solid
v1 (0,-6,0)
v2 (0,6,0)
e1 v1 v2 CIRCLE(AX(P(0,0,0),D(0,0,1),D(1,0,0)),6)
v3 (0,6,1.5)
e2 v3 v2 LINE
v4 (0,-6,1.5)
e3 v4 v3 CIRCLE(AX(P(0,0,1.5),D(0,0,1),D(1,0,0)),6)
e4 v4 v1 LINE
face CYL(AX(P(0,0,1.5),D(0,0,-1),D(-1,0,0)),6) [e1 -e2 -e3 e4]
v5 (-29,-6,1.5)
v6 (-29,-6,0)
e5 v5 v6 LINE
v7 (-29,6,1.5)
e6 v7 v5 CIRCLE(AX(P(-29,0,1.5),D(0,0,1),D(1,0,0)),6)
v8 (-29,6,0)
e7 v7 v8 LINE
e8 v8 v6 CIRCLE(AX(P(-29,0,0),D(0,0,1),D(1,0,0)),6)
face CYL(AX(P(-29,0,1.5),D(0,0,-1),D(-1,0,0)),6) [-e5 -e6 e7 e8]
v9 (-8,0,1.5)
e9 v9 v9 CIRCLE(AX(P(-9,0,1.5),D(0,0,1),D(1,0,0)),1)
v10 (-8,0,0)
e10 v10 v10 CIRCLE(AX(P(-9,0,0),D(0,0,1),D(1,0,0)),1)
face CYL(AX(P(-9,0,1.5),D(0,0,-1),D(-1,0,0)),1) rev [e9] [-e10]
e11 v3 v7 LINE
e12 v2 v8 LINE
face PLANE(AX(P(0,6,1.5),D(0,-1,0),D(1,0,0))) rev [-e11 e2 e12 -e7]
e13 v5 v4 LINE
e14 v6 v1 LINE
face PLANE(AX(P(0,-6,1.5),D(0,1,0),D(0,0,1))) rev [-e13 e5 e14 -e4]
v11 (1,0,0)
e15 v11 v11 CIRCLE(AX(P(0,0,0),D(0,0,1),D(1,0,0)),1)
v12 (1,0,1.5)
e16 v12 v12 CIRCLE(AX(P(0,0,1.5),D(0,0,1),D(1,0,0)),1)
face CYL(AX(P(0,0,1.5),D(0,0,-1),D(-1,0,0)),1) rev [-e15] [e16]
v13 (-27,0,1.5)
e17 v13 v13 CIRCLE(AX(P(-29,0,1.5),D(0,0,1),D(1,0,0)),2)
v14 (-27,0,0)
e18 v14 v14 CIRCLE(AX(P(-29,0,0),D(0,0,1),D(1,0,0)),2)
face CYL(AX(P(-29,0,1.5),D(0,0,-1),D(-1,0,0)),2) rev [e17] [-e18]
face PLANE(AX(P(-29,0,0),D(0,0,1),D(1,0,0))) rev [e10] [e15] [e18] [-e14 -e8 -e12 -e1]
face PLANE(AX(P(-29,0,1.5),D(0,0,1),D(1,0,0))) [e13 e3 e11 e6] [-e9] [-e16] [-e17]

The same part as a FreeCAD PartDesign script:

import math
import FreeCAD as App
import Part
import Sketcher
Q = App.Units.Quantity

doc = App.newDocument("Part")
params = doc.addObject("Spreadsheet::Sheet", "Params")
for row, (alias, value) in enumerate([
    ("sketch1_diameter", "4 mm"),
    ("sketch1_diameter2", "2 mm"),
    ("sketch1_radius", "6 mm"),
    ("sketch1_width", "29 mm"),
    ("pad1_length", "1.5 mm"),
], start=1):
    params.set(f"A{row}", alias)
    params.set(f"B{row}", "=" + value)
    params.setAlias(f"B{row}", alias)

body = doc.addObject("PartDesign::Body", "Body")

# Sketch on XY plane
sketch1 = body.newObject("Sketcher::SketchObject", "Sketch")
sketch1.AttachmentSupport = (doc.getObject("XY_Plane"), [""])
sketch1.MapMode = "FlatFace"
sketch1.addGeometry(Part.LineSegment(App.Vector(0, 6, 0), App.Vector(-29, 6, 0)), False)
sketch1.addGeometry(Part.ArcOfCircle(Part.Circle(App.Vector(-29, 0, 0), App.Vector(0, 0, 1), 6), math.radians(90), math.radians(270)), False)
sketch1.addGeometry(Part.LineSegment(App.Vector(-29, -6, 0), App.Vector(0, -6, 0)), False)
sketch1.addGeometry(Part.ArcOfCircle(Part.Circle(App.Vector(0, 0, 0), App.Vector(0, 0, 1), 6), math.radians(-90), math.radians(90)), False)
sketch1.addGeometry(Part.Circle(App.Vector(-29, 0, 0), App.Vector(0, 0, 1), 2), False)
sketch1.addGeometry(Part.Circle(App.Vector(-9, 0, 0), App.Vector(0, 0, 1), 1), False)
sketch1.addGeometry(Part.Circle(App.Vector(0, 0, 0), App.Vector(0, 0, 1), 1), False)
sketch1.addConstraint(Sketcher.Constraint("Tangent", 0, 2, 1, 1))
sketch1.addConstraint(Sketcher.Constraint("Tangent", 1, 2, 2, 1))
sketch1.addConstraint(Sketcher.Constraint("Tangent", 2, 2, 3, 1))
sketch1.addConstraint(Sketcher.Constraint("Tangent", 3, 2, 0, 1))
sketch1.addConstraint(Sketcher.Constraint("Horizontal", 0))
sketch1.addConstraint(Sketcher.Constraint("Horizontal", 2))
sketch1.addConstraint(Sketcher.Constraint("Coincident", 3, 3, -1, 1))
sketch1.addConstraint(Sketcher.Constraint("Coincident", 6, 3, -1, 1))
sketch1.addConstraint(Sketcher.Constraint("Coincident", 4, 3, 1, 3))
sketch1.addConstraint(Sketcher.Constraint("Equal", 5, 6))
sketch1.addConstraint(Sketcher.Constraint("PointOnObject", 5, 3, -1))
sketch1.addConstraint(Sketcher.Constraint("Diameter", 4, Q("4 mm")))
sketch1.addConstraint(Sketcher.Constraint("Diameter", 5, Q("2 mm")))
sketch1.addConstraint(Sketcher.Constraint("Radius", 1, Q("6 mm")))
sketch1.addConstraint(Sketcher.Constraint("DistanceX", 0, 2, 0, 1, Q("29 mm")))
sketch1.addConstraint(Sketcher.Constraint("DistanceX", 5, 3, -1, 1, Q("9 mm")))
sketch1.setExpression("Constraints[11]", "Params.sketch1_diameter")
sketch1.setExpression("Constraints[12]", "Params.sketch1_diameter2")
sketch1.setExpression("Constraints[13]", "Params.sketch1_radius")
sketch1.setExpression("Constraints[14]", "Params.sketch1_width")
pad1 = body.newObject("PartDesign::Pad", "Pad")
pad1.Profile = sketch1
pad1.setExpression("Length", "Params.pad1_length")

doc.recompute()
